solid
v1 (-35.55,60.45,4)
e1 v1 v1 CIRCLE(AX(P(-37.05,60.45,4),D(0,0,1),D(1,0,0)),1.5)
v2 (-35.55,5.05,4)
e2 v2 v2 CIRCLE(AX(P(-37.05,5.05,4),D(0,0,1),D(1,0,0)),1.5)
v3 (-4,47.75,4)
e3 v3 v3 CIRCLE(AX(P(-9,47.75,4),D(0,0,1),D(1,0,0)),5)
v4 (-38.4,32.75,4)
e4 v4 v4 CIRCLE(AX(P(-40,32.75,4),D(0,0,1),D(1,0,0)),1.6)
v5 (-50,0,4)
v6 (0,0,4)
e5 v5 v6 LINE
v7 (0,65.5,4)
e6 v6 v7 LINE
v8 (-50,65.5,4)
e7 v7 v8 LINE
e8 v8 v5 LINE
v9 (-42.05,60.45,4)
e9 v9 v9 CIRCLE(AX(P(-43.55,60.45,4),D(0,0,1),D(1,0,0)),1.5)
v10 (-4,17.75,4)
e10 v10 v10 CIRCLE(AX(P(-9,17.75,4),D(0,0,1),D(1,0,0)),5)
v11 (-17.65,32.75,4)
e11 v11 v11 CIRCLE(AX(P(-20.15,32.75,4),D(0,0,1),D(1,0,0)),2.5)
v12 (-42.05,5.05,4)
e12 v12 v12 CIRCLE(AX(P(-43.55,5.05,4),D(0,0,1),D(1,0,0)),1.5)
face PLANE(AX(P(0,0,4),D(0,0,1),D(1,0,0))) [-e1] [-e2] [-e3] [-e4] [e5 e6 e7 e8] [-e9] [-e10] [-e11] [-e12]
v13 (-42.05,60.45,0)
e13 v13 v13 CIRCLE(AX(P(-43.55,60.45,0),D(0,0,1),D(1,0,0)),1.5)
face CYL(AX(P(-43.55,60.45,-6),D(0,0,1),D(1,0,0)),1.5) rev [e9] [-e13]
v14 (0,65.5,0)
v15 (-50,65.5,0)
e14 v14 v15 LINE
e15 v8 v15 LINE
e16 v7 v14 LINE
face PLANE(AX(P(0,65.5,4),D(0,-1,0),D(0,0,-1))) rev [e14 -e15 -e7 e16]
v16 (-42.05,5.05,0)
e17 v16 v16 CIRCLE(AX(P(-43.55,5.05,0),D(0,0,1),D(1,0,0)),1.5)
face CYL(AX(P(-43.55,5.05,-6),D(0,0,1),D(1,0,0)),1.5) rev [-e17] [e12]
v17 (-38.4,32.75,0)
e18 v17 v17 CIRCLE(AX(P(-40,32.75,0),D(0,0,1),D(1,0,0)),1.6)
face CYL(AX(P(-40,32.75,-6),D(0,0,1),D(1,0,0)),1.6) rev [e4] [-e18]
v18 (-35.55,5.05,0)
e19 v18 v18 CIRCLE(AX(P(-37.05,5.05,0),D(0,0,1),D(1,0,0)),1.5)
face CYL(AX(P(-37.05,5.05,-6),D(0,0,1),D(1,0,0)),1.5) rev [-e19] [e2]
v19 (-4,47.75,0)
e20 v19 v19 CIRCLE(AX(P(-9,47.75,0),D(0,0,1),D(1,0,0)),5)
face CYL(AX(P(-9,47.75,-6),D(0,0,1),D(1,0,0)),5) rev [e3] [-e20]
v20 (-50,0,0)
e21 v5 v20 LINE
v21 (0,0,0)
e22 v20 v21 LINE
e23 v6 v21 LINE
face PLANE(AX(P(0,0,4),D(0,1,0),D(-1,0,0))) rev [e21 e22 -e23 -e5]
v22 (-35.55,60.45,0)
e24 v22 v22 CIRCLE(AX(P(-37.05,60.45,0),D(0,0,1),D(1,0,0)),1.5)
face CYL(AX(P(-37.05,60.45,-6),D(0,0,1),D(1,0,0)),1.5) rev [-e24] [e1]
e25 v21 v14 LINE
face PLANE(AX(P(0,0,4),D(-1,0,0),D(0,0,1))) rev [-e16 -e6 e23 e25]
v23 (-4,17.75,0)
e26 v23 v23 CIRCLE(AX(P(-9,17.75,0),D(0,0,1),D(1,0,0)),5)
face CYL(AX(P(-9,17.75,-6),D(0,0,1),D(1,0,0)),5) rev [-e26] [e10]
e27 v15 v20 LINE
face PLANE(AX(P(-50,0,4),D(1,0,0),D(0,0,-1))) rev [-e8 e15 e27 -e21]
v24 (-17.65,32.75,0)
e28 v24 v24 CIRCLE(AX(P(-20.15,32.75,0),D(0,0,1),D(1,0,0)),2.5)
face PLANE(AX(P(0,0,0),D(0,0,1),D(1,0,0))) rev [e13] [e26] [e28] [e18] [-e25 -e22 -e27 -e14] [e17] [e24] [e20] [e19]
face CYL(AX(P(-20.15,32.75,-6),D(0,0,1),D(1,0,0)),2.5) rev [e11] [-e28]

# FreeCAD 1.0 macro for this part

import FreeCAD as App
import Part
import Sketcher

V = App.Vector
Q = App.Units.Quantity


def add_polygon(sketch, points):
    """Adds a closed chain of lines whose ends are joined by coincident constraints."""
    first, n = sketch.GeometryCount, len(points)
    for a, b in zip(points, points[1:] + points[:1]):
        sketch.addGeometry(Part.LineSegment(App.Vector(*a, 0), App.Vector(*b, 0)), False)
    for i in range(n):
        sketch.addConstraint(Sketcher.Constraint("Coincident", first + i, 2, first + (i + 1) % n, 1))

doc = App.newDocument("Part")
params = doc.addObject("Spreadsheet::Sheet", "Params")
for row, (alias, value) in enumerate([
    ("sketch1_width", "50 mm"),
    ("sketch1_height", "65.5 mm"),
    ("pad1_length", "4 mm"),
    ("sketch2_diameter", "10 mm"),
    ("sketch2_diameter2", "3 mm"),
    ("sketch2_diameter3", "5 mm"),
    ("sketch2_diameter4", "3.2 mm"),
    ("pocket1_length", "10 mm"),
], start=1):
    params.set(f"A{row}", alias)
    params.set(f"B{row}", "=" + value)
    params.setAlias(f"B{row}", alias)

body = doc.addObject("PartDesign::Body", "Body")

# Sketch on XY plane
sketch1 = doc.addObject("Sketcher::SketchObject", "Sketch")
body.addObject(sketch1)
sketch1.AttachmentSupport = (doc.XY_Plane, [""])
sketch1.MapMode = "FlatFace"
add_polygon(sketch1, [(-50, 65.5), (-50, 0), (0, 0), (0, 65.5)])  # lines 0-3
sketch1.addConstraint(Sketcher.Constraint("Vertical", 0))
sketch1.addConstraint(Sketcher.Constraint("Horizontal", 1))
sketch1.addConstraint(Sketcher.Constraint("Vertical", 2))
sketch1.addConstraint(Sketcher.Constraint("Horizontal", 3))
sketch1.addConstraint(Sketcher.Constraint("Coincident", 1, 2, -1, 1))
sketch1.addConstraint(Sketcher.Constraint("DistanceX", 1, 1, 1, 2, Q("50 mm")))
sketch1.addConstraint(Sketcher.Constraint("DistanceY", 0, 2, 0, 1, Q("65.5 mm")))
sketch1.setExpression("Constraints[9]", "Params.sketch1_width")
sketch1.setExpression("Constraints[10]", "Params.sketch1_height")
pad1 = doc.addObject("PartDesign::Pad", "Pad")
body.addObject(pad1)
pad1.Profile = sketch1
pad1.setExpression("Length", "Params.pad1_length")

# Sketch on XY plane
sketch2 = doc.addObject("Sketcher::SketchObject", "Sketch001")
body.addObject(sketch2)
sketch2.AttachmentSupport = (doc.XY_Plane, [""])
sketch2.MapMode = "FlatFace"
sketch2.AttachmentOffset = App.Placement(V(0, 0, 4), App.Rotation())
sketch2.addGeometry(Part.Circle(V(-9, 47.75, 0), V(0, 0, 1), 5), False)
sketch2.addGeometry(Part.Circle(V(-37.05, 60.45, 0), V(0, 0, 1), 1.5), False)
sketch2.addGeometry(Part.Circle(V(-43.55, 60.45, 0), V(0, 0, 1), 1.5), False)
sketch2.addGeometry(Part.Circle(V(-40, 32.75, 0), V(0, 0, 1), 1.6), False)
sketch2.addGeometry(Part.Circle(V(-20.15, 32.75, 0), V(0, 0, 1), 2.5), False)
sketch2.addGeometry(Part.Circle(V(-9, 17.75, 0), V(0, 0, 1), 5), False)
sketch2.addGeometry(Part.Circle(V(-37.05, 5.05, 0), V(0, 0, 1), 1.5), False)
sketch2.addGeometry(Part.Circle(V(-43.55, 5.05, 0), V(0, 0, 1), 1.5), False)
sketch2.addConstraint(Sketcher.Constraint("Equal", 1, 2))
sketch2.addConstraint(Sketcher.Constraint("Equal", 0, 5))
sketch2.addConstraint(Sketcher.Constraint("Equal", 2, 6))
sketch2.addConstraint(Sketcher.Constraint("Equal", 6, 7))
sketch2.addConstraint(Sketcher.Constraint("Horizontal", 1, 3, 2, 3))
sketch2.addConstraint(Sketcher.Constraint("Horizontal", 3, 3, 4, 3))
sketch2.addConstraint(Sketcher.Constraint("Horizontal", 6, 3, 7, 3))
sketch2.addConstraint(Sketcher.Constraint("Vertical", 0, 3, 5, 3))
sketch2.addConstraint(Sketcher.Constraint("Vertical", 1, 3, 6, 3))
sketch2.addConstraint(Sketcher.Constraint("Vertical", 2, 3, 7, 3))
sketch2.addConstraint(Sketcher.Constraint("Diameter", 0, Q("10 mm")))
sketch2.addConstraint(Sketcher.Constraint("Diameter", 1, Q("3 mm")))
sketch2.addConstraint(Sketcher.Constraint("Diameter", 4, Q("5 mm")))
sketch2.addConstraint(Sketcher.Constraint("Diameter", 3, Q("3.2 mm")))
sketch2.addConstraint(Sketcher.Constraint("DistanceX", 0, 3, -1, 1, Q("9 mm")))
sketch2.addConstraint(Sketcher.Constraint("DistanceX", 3, 3, -1, 1, Q("40 mm")))
sketch2.addConstraint(Sketcher.Constraint("DistanceY", 3, 3, 0, 3, Q("15 mm")))
sketch2.addConstraint(Sketcher.Constraint("DistanceY", 5, 3, 4, 3, Q("15 mm")))
sketch2.addConstraint(Sketcher.Constraint("DistanceY", 0, 3, 1, 3, Q("12.7 mm")))
sketch2.addConstraint(Sketcher.Constraint("DistanceX", 2, 3, 1, 3, Q("6.5 mm")))
sketch2.addConstraint(Sketcher.Constraint("DistanceX", 1, 3, 4, 3, Q("16.9 mm")))
sketch2.addConstraint(Sketcher.Constraint("DistanceY", 6, 3, 3, 3, Q("27.7 mm")))
sketch2.addConstraint(Sketcher.Constraint("DistanceY", -1, 1, 0, 3, Q("47.75 mm")))
sketch2.addConstraint(Sketcher.Constraint("DistanceX", 1, 3, -1, 1, Q("37.05 mm")))
sketch2.setExpression("Constraints[10]", "Params.sketch2_diameter")
sketch2.setExpression("Constraints[11]", "Params.sketch2_diameter2")
sketch2.setExpression("Constraints[12]", "Params.sketch2_diameter3")
sketch2.setExpression("Constraints[13]", "Params.sketch2_diameter4")
pocket1 = doc.addObject("PartDesign::Pocket", "Pocket")
body.addObject(pocket1)
pocket1.Profile = sketch2
pocket1.setExpression("Length", "Params.pocket1_length")

doc.recompute()
